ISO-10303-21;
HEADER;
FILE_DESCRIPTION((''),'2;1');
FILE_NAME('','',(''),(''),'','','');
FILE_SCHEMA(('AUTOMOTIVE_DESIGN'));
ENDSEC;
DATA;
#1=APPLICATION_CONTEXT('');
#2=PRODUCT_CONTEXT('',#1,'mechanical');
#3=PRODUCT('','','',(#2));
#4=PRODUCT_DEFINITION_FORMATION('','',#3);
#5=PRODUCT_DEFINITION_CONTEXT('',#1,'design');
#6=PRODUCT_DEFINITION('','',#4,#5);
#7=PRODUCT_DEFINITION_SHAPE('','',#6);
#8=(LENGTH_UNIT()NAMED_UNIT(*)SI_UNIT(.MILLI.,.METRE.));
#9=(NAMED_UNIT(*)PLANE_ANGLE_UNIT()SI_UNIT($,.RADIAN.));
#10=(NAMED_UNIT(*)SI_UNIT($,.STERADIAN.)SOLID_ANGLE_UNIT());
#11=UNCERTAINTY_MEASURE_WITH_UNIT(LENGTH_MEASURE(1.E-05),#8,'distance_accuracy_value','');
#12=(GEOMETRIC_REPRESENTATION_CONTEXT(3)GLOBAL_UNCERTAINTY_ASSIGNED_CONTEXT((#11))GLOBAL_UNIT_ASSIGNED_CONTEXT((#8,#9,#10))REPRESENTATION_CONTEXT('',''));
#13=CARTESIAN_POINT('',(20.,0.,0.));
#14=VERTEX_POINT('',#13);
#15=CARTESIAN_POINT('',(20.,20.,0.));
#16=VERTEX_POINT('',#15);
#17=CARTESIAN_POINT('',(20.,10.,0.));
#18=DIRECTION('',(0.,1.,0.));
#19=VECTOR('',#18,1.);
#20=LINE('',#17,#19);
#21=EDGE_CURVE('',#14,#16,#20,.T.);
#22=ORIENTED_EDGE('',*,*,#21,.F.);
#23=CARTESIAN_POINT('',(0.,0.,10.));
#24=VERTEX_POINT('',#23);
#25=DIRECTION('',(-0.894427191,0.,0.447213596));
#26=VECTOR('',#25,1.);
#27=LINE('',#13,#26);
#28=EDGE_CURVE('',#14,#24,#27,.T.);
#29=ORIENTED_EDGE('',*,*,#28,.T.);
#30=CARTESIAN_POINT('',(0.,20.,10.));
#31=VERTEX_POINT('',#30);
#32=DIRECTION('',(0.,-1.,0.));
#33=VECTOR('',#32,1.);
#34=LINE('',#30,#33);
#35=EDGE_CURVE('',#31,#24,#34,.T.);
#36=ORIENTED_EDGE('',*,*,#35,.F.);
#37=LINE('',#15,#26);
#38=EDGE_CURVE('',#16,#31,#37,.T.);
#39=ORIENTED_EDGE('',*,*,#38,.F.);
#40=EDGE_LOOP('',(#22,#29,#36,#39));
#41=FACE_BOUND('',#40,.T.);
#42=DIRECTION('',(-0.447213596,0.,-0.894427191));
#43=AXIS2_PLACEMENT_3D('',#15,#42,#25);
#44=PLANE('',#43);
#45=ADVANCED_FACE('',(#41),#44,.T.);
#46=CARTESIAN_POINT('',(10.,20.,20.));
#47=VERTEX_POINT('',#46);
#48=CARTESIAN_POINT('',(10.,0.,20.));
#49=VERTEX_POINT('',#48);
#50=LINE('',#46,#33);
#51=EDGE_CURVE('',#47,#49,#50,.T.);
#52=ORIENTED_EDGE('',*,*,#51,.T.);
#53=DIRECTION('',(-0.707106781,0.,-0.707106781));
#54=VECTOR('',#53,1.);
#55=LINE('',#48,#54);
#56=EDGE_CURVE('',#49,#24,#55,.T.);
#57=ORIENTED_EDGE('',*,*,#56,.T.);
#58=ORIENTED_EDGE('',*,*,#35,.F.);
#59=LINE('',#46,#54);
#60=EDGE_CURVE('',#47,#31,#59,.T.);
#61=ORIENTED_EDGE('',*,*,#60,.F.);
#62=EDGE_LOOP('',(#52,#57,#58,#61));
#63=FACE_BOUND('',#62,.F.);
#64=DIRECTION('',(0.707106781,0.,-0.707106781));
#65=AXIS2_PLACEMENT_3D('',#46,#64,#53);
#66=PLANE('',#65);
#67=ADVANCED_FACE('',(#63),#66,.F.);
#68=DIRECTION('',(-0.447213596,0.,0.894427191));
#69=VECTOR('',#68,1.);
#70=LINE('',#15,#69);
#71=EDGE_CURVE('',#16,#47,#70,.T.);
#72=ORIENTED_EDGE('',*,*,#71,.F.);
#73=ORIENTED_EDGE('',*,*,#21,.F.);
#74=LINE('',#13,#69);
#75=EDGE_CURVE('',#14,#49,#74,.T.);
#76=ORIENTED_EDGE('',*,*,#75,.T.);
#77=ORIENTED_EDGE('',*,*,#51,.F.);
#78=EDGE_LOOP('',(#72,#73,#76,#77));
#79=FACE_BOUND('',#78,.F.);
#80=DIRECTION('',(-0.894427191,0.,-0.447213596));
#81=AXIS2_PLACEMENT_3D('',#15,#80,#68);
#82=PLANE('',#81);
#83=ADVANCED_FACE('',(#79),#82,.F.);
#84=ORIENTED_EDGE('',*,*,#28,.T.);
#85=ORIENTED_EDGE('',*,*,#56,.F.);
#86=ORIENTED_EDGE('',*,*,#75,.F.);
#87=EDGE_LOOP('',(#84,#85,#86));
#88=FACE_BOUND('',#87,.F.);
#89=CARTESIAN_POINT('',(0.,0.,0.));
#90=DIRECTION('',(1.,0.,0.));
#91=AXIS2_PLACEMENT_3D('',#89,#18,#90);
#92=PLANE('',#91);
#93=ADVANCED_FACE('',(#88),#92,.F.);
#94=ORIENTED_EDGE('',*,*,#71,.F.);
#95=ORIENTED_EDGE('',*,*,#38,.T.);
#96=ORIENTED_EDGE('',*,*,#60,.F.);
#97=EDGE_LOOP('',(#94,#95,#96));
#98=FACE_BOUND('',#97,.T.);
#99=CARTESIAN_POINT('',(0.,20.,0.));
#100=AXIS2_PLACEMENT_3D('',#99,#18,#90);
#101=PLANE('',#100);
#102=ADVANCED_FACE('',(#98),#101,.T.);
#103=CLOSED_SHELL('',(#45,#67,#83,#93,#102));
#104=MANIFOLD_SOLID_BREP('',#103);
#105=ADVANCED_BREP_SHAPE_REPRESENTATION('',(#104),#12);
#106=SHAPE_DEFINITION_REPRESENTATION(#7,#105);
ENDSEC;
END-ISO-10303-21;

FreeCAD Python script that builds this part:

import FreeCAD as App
import Part
import Sketcher


def add_polygon(sketch, points):
    """Adds a closed chain of lines whose ends are joined by coincident constraints."""
    first, n = sketch.GeometryCount, len(points)
    for a, b in zip(points, points[1:] + points[:1]):
        sketch.addGeometry(Part.LineSegment(App.Vector(*a, 0), App.Vector(*b, 0)), False)
    for i in range(n):
        sketch.addConstraint(Sketcher.Constraint("Coincident", first + i, 2, first + (i + 1) % n, 1))

doc = App.newDocument("Part")
body = doc.addObject("PartDesign::Body", "Body")

# Sketch on XY plane
sketch1 = body.newObject("Sketcher::SketchObject", "Sketch")
sketch1.AttachmentSupport = (doc.getObject("XY_Plane"), [""])
sketch1.MapMode = "FlatFace"
add_polygon(sketch1, [(0, 20), (0, 0), (20, 0), (20, 20)])  # lines 0-3
sketch1.addConstraint(Sketcher.Constraint("Vertical", 0))
sketch1.addConstraint(Sketcher.Constraint("Horizontal", 1))
sketch1.addConstraint(Sketcher.Constraint("Vertical", 2))
sketch1.addConstraint(Sketcher.Constraint("Horizontal", 3))
sketch1.addConstraint(Sketcher.Constraint("Coincident", 0, 2, -1, 1))
sketch1.addConstraint(Sketcher.Constraint("Equal", 3, 0))
sketch1.addConstraint(Sketcher.Constraint("DistanceX", 1, 1, 1, 2, 20.0))
pad1 = body.newObject("PartDesign::Pad", "Pad")
pad1.Profile = sketch1
pad1.Length = 20

# Sketch on XZ plane
sketch2 = body.newObject("Sketcher::SketchObject", "Sketch001")
sketch2.AttachmentSupport = (doc.getObject("XZ_Plane"), [""])
sketch2.MapMode = "FlatFace"
sketch2.AttachmentOffset = App.Placement(App.Vector(0, 0, -20), App.Rotation())
add_polygon(sketch2, [(20, 0), (10, 20), (20, 20)])  # lines 0-2
sketch2.addConstraint(Sketcher.Constraint("Horizontal", 1))
sketch2.addConstraint(Sketcher.Constraint("Vertical", 2))
sketch2.addConstraint(Sketcher.Constraint("PointOnObject", 2, 2, -1))
sketch2.addConstraint(Sketcher.Constraint("DistanceX", 1, 1, 1, 2, 10.0))
sketch2.addConstraint(Sketcher.Constraint("DistanceY", 2, 2, 2, 1, 20.0))
sketch2.addConstraint(Sketcher.Constraint("DistanceX", -1, 1, 0, 2, 10.0))
pocket1 = body.newObject("PartDesign::Pocket", "Pocket")
pocket1.Profile = sketch2
pocket1.Length = 20
pocket1.Reversed = True

# Sketch on XZ plane
sketch3 = body.newObject("Sketcher::SketchObject", "Sketch002")
sketch3.AttachmentSupport = (doc.getObject("XZ_Plane"), [""])
sketch3.MapMode = "FlatFace"
sketch3.AttachmentOffset = App.Placement(App.Vector(0, 0, -20), App.Rotation())
add_polygon(sketch3, [(0, 20), (10, 20), (0, 10)])  # lines 0-2
sketch3.addConstraint(Sketcher.Constraint("Horizontal", 0))
sketch3.addConstraint(Sketcher.Constraint("Vertical", 2))
sketch3.addConstraint(Sketcher.Constraint("PointOnObject", 1, 2, -2))
sketch3.addConstraint(Sketcher.Constraint("Equal", 0, 2))
sketch3.addConstraint(Sketcher.Constraint("DistanceX", 0, 1, 0, 2, 10.0))
sketch3.addConstraint(Sketcher.Constraint("DistanceY", -1, 1, 0, 2, 20.0))
pocket2 = body.newObject("PartDesign::Pocket", "Pocket001")
pocket2.Profile = sketch3
pocket2.Length = 20
pocket2.Reversed = True

# Sketch on XZ plane
sketch4 = body.newObject("Sketcher::SketchObject", "Sketch003")
sketch4.AttachmentSupport = (doc.getObject("XZ_Plane"), [""])
sketch4.MapMode = "FlatFace"
sketch4.AttachmentOffset = App.Placement(App.Vector(0, 0, -20), App.Rotation())
add_polygon(sketch4, [(0, 10), (20, 0), (0, 0)])  # lines 0-2
sketch4.addConstraint(Sketcher.Constraint("Horizontal", 1))
sketch4.addConstraint(Sketcher.Constraint("Vertical", 2))
sketch4.addConstraint(Sketcher.Constraint("Coincident", 1, 2, -1, 1))
sketch4.addConstraint(Sketcher.Constraint("DistanceX", 1, 2, 1, 1, 20.0))
sketch4.addConstraint(Sketcher.Constraint("DistanceY", 2, 1, 2, 2, 10.0))
pocket3 = body.newObject("PartDesign::Pocket", "Pocket002")
pocket3.Profile = sketch4
pocket3.Length = 20
pocket3.Reversed = True

doc.recompute()
